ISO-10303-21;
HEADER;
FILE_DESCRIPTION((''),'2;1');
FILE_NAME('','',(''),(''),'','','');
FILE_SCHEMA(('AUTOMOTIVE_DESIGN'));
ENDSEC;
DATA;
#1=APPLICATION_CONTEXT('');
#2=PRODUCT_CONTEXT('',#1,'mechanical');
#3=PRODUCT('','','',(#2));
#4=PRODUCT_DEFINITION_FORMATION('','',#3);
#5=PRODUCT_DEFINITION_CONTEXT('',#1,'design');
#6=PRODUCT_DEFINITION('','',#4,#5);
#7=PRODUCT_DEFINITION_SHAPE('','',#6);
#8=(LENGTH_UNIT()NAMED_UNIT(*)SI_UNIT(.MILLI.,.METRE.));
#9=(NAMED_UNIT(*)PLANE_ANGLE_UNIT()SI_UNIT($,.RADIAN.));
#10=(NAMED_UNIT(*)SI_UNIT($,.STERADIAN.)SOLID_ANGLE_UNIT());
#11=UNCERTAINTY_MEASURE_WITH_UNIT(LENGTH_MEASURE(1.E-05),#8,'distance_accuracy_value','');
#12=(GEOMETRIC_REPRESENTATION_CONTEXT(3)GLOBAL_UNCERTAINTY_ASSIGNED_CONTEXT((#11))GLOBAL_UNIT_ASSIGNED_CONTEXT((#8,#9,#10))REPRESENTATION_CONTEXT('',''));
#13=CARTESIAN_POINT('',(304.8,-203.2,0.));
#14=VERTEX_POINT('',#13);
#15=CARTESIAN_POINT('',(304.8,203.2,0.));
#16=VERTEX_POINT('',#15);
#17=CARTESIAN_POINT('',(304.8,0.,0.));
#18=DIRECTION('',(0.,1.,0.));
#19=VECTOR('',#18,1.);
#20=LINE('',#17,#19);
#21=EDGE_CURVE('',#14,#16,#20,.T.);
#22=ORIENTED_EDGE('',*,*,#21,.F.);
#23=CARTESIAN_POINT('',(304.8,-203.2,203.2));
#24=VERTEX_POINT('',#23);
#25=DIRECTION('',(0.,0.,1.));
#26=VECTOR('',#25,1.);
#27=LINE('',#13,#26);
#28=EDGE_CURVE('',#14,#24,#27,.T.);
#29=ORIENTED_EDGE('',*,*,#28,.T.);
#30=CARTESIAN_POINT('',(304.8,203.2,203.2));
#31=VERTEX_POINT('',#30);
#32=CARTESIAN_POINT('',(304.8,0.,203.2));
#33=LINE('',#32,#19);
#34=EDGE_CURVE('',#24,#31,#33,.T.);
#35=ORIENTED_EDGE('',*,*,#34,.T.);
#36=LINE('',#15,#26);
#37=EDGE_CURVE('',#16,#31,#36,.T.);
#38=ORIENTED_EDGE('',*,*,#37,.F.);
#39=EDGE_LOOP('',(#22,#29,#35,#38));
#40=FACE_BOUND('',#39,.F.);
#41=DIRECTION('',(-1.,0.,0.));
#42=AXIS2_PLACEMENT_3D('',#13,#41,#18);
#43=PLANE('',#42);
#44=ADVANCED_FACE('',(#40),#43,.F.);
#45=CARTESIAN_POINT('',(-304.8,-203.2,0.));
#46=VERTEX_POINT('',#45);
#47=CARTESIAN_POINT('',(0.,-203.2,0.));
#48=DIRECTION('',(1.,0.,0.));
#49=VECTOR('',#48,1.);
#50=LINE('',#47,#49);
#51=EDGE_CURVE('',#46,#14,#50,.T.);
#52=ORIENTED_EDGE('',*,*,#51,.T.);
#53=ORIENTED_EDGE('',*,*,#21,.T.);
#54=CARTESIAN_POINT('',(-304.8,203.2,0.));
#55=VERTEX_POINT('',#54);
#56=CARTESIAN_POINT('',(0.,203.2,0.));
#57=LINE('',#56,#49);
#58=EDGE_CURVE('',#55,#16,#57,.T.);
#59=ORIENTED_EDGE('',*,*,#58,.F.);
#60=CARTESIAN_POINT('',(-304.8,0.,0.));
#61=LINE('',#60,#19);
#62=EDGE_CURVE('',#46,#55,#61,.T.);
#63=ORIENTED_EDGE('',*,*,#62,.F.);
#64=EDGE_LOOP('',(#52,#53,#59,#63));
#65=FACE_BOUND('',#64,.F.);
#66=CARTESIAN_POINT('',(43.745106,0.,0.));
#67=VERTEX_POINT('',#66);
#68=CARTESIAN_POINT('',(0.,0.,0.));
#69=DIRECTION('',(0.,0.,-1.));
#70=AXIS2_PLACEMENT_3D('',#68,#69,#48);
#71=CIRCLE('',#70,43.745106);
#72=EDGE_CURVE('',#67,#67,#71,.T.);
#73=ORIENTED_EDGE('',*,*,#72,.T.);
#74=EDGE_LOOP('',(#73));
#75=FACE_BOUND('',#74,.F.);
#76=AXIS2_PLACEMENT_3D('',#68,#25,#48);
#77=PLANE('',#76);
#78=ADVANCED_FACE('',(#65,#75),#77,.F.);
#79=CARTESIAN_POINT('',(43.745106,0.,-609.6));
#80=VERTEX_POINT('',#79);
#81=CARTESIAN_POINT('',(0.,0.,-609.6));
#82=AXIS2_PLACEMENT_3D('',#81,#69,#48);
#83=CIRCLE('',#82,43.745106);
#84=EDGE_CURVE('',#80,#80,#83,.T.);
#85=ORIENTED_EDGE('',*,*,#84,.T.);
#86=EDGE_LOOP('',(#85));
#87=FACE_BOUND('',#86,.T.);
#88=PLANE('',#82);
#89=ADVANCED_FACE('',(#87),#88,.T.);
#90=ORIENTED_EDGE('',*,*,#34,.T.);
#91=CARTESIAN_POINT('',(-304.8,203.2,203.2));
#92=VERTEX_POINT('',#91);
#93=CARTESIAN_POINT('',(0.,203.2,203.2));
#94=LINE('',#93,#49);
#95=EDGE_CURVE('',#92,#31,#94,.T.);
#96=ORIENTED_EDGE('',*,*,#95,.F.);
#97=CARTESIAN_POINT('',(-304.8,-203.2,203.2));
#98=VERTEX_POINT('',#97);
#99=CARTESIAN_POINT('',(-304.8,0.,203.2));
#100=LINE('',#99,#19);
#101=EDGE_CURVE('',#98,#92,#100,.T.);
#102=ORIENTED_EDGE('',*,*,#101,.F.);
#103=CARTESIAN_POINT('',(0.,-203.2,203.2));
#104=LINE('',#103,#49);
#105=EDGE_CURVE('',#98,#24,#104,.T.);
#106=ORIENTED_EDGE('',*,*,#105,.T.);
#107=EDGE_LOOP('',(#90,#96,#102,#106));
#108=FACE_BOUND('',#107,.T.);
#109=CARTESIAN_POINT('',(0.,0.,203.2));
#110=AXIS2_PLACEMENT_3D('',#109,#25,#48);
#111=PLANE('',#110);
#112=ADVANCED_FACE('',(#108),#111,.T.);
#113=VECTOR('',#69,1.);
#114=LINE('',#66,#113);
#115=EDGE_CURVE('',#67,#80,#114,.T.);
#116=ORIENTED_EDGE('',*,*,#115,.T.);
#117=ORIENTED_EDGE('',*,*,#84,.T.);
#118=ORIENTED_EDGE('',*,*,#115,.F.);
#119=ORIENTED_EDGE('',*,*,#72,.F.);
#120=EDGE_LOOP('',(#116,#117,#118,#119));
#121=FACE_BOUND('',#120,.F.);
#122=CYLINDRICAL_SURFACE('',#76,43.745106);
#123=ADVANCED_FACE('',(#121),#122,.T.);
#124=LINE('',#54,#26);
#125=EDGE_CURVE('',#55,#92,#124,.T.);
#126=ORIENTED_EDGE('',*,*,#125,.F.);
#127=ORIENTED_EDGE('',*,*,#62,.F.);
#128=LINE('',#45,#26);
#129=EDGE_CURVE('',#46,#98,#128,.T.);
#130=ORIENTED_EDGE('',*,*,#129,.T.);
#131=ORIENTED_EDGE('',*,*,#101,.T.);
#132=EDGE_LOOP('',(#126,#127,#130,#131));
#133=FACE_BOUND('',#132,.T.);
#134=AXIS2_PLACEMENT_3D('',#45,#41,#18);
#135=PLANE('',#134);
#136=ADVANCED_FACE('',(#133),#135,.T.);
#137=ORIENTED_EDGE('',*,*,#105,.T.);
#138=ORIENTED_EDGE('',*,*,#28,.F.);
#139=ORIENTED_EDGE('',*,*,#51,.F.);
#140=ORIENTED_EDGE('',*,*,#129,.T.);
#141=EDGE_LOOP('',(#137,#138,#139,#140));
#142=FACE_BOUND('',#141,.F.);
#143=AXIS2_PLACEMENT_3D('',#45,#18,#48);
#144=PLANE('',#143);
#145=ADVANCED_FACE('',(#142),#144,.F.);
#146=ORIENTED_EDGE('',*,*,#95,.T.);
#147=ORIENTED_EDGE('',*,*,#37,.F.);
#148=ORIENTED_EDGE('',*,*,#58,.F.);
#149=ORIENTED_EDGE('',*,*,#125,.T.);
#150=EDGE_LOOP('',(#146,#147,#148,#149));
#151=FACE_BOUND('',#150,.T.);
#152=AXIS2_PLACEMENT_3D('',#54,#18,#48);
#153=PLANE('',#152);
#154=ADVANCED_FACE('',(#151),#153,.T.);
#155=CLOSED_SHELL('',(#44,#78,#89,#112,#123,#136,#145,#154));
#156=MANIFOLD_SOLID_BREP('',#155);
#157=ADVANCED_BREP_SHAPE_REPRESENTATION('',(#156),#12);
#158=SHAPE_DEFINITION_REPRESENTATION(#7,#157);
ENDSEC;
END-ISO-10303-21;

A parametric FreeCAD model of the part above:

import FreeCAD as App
import Part
import Sketcher
from FreeCAD import Vector
Q = App.Units.Quantity


def add_polygon(sketch, points):
    """Adds a closed chain of lines whose ends are joined by coincident constraints."""
    first, n = sketch.GeometryCount, len(points)
    for a, b in zip(points, points[1:] + points[:1]):
        sketch.addGeometry(Part.LineSegment(App.Vector(*a, 0), App.Vector(*b, 0)), False)
    for i in range(n):
        sketch.addConstraint(Sketcher.Constraint("Coincident", first + i, 2, first + (i + 1) % n, 1))

doc = App.newDocument("Part")
params = doc.addObject("Spreadsheet::Sheet", "Params")
for row, (alias, value) in enumerate([
    ("sketch1_width", "24 in"),
    ("sketch1_height", "16 in"),
    ("pad1_length", "8 in"),
    ("pad2_length", "24 in"),
], start=1):
    params.set(f"A{row}", alias)
    params.set(f"B{row}", "=" + value)
    params.setAlias(f"B{row}", alias)

body = doc.addObject("PartDesign::Body", "Body")

# Sketch on XY plane
sketch1 = body.newObject("Sketcher::SketchObject", "Sketch")
sketch1.AttachmentSupport = (doc.getObject("XY_Plane"), [""])
sketch1.MapMode = "FlatFace"
add_polygon(sketch1, [(-305, 203), (-305, -203), (305, -203), (305, 203)])  # lines 0-3
sketch1.addConstraint([
    Sketcher.Constraint("Vertical", 0),
    Sketcher.Constraint("Horizontal", 1),
    Sketcher.Constraint("Vertical", 2),
    Sketcher.Constraint("Horizontal", 3),
    Sketcher.Constraint("Symmetric", 0, 2, 2, 2, -1, 1),
    Sketcher.Constraint("DistanceX", 1, 1, 1, 2, Q("24 in")),
    Sketcher.Constraint("DistanceY", 0, 2, 0, 1, Q("16 in")),
])
sketch1.setExpression("Constraints[9]", "Params.sketch1_width")
sketch1.setExpression("Constraints[10]", "Params.sketch1_height")
pad1 = body.newObject("PartDesign::Pad", "Pad")
pad1.Profile = sketch1
pad1.setExpression("Length", "Params.pad1_length")

# Sketch on XY plane
sketch2 = body.newObject("Sketcher::SketchObject", "Sketch001")
sketch2.AttachmentSupport = (doc.getObject("XY_Plane"), [""])
sketch2.MapMode = "FlatFace"
sketch2.addGeometry(Part.Circle(Vector(0, 0, 0), Vector(0, 0, 1), 44), False)
sketch2.addConstraint([
    Sketcher.Constraint("Coincident", 0, 3, -1, 1),
    Sketcher.Constraint("Diameter", 0, 87.490212),
])
pad2 = body.newObject("PartDesign::Pad", "Pad001")
pad2.Profile = sketch2
pad2.setExpression("Length", "Params.pad2_length")
pad2.Reversed = True

doc.recompute()
